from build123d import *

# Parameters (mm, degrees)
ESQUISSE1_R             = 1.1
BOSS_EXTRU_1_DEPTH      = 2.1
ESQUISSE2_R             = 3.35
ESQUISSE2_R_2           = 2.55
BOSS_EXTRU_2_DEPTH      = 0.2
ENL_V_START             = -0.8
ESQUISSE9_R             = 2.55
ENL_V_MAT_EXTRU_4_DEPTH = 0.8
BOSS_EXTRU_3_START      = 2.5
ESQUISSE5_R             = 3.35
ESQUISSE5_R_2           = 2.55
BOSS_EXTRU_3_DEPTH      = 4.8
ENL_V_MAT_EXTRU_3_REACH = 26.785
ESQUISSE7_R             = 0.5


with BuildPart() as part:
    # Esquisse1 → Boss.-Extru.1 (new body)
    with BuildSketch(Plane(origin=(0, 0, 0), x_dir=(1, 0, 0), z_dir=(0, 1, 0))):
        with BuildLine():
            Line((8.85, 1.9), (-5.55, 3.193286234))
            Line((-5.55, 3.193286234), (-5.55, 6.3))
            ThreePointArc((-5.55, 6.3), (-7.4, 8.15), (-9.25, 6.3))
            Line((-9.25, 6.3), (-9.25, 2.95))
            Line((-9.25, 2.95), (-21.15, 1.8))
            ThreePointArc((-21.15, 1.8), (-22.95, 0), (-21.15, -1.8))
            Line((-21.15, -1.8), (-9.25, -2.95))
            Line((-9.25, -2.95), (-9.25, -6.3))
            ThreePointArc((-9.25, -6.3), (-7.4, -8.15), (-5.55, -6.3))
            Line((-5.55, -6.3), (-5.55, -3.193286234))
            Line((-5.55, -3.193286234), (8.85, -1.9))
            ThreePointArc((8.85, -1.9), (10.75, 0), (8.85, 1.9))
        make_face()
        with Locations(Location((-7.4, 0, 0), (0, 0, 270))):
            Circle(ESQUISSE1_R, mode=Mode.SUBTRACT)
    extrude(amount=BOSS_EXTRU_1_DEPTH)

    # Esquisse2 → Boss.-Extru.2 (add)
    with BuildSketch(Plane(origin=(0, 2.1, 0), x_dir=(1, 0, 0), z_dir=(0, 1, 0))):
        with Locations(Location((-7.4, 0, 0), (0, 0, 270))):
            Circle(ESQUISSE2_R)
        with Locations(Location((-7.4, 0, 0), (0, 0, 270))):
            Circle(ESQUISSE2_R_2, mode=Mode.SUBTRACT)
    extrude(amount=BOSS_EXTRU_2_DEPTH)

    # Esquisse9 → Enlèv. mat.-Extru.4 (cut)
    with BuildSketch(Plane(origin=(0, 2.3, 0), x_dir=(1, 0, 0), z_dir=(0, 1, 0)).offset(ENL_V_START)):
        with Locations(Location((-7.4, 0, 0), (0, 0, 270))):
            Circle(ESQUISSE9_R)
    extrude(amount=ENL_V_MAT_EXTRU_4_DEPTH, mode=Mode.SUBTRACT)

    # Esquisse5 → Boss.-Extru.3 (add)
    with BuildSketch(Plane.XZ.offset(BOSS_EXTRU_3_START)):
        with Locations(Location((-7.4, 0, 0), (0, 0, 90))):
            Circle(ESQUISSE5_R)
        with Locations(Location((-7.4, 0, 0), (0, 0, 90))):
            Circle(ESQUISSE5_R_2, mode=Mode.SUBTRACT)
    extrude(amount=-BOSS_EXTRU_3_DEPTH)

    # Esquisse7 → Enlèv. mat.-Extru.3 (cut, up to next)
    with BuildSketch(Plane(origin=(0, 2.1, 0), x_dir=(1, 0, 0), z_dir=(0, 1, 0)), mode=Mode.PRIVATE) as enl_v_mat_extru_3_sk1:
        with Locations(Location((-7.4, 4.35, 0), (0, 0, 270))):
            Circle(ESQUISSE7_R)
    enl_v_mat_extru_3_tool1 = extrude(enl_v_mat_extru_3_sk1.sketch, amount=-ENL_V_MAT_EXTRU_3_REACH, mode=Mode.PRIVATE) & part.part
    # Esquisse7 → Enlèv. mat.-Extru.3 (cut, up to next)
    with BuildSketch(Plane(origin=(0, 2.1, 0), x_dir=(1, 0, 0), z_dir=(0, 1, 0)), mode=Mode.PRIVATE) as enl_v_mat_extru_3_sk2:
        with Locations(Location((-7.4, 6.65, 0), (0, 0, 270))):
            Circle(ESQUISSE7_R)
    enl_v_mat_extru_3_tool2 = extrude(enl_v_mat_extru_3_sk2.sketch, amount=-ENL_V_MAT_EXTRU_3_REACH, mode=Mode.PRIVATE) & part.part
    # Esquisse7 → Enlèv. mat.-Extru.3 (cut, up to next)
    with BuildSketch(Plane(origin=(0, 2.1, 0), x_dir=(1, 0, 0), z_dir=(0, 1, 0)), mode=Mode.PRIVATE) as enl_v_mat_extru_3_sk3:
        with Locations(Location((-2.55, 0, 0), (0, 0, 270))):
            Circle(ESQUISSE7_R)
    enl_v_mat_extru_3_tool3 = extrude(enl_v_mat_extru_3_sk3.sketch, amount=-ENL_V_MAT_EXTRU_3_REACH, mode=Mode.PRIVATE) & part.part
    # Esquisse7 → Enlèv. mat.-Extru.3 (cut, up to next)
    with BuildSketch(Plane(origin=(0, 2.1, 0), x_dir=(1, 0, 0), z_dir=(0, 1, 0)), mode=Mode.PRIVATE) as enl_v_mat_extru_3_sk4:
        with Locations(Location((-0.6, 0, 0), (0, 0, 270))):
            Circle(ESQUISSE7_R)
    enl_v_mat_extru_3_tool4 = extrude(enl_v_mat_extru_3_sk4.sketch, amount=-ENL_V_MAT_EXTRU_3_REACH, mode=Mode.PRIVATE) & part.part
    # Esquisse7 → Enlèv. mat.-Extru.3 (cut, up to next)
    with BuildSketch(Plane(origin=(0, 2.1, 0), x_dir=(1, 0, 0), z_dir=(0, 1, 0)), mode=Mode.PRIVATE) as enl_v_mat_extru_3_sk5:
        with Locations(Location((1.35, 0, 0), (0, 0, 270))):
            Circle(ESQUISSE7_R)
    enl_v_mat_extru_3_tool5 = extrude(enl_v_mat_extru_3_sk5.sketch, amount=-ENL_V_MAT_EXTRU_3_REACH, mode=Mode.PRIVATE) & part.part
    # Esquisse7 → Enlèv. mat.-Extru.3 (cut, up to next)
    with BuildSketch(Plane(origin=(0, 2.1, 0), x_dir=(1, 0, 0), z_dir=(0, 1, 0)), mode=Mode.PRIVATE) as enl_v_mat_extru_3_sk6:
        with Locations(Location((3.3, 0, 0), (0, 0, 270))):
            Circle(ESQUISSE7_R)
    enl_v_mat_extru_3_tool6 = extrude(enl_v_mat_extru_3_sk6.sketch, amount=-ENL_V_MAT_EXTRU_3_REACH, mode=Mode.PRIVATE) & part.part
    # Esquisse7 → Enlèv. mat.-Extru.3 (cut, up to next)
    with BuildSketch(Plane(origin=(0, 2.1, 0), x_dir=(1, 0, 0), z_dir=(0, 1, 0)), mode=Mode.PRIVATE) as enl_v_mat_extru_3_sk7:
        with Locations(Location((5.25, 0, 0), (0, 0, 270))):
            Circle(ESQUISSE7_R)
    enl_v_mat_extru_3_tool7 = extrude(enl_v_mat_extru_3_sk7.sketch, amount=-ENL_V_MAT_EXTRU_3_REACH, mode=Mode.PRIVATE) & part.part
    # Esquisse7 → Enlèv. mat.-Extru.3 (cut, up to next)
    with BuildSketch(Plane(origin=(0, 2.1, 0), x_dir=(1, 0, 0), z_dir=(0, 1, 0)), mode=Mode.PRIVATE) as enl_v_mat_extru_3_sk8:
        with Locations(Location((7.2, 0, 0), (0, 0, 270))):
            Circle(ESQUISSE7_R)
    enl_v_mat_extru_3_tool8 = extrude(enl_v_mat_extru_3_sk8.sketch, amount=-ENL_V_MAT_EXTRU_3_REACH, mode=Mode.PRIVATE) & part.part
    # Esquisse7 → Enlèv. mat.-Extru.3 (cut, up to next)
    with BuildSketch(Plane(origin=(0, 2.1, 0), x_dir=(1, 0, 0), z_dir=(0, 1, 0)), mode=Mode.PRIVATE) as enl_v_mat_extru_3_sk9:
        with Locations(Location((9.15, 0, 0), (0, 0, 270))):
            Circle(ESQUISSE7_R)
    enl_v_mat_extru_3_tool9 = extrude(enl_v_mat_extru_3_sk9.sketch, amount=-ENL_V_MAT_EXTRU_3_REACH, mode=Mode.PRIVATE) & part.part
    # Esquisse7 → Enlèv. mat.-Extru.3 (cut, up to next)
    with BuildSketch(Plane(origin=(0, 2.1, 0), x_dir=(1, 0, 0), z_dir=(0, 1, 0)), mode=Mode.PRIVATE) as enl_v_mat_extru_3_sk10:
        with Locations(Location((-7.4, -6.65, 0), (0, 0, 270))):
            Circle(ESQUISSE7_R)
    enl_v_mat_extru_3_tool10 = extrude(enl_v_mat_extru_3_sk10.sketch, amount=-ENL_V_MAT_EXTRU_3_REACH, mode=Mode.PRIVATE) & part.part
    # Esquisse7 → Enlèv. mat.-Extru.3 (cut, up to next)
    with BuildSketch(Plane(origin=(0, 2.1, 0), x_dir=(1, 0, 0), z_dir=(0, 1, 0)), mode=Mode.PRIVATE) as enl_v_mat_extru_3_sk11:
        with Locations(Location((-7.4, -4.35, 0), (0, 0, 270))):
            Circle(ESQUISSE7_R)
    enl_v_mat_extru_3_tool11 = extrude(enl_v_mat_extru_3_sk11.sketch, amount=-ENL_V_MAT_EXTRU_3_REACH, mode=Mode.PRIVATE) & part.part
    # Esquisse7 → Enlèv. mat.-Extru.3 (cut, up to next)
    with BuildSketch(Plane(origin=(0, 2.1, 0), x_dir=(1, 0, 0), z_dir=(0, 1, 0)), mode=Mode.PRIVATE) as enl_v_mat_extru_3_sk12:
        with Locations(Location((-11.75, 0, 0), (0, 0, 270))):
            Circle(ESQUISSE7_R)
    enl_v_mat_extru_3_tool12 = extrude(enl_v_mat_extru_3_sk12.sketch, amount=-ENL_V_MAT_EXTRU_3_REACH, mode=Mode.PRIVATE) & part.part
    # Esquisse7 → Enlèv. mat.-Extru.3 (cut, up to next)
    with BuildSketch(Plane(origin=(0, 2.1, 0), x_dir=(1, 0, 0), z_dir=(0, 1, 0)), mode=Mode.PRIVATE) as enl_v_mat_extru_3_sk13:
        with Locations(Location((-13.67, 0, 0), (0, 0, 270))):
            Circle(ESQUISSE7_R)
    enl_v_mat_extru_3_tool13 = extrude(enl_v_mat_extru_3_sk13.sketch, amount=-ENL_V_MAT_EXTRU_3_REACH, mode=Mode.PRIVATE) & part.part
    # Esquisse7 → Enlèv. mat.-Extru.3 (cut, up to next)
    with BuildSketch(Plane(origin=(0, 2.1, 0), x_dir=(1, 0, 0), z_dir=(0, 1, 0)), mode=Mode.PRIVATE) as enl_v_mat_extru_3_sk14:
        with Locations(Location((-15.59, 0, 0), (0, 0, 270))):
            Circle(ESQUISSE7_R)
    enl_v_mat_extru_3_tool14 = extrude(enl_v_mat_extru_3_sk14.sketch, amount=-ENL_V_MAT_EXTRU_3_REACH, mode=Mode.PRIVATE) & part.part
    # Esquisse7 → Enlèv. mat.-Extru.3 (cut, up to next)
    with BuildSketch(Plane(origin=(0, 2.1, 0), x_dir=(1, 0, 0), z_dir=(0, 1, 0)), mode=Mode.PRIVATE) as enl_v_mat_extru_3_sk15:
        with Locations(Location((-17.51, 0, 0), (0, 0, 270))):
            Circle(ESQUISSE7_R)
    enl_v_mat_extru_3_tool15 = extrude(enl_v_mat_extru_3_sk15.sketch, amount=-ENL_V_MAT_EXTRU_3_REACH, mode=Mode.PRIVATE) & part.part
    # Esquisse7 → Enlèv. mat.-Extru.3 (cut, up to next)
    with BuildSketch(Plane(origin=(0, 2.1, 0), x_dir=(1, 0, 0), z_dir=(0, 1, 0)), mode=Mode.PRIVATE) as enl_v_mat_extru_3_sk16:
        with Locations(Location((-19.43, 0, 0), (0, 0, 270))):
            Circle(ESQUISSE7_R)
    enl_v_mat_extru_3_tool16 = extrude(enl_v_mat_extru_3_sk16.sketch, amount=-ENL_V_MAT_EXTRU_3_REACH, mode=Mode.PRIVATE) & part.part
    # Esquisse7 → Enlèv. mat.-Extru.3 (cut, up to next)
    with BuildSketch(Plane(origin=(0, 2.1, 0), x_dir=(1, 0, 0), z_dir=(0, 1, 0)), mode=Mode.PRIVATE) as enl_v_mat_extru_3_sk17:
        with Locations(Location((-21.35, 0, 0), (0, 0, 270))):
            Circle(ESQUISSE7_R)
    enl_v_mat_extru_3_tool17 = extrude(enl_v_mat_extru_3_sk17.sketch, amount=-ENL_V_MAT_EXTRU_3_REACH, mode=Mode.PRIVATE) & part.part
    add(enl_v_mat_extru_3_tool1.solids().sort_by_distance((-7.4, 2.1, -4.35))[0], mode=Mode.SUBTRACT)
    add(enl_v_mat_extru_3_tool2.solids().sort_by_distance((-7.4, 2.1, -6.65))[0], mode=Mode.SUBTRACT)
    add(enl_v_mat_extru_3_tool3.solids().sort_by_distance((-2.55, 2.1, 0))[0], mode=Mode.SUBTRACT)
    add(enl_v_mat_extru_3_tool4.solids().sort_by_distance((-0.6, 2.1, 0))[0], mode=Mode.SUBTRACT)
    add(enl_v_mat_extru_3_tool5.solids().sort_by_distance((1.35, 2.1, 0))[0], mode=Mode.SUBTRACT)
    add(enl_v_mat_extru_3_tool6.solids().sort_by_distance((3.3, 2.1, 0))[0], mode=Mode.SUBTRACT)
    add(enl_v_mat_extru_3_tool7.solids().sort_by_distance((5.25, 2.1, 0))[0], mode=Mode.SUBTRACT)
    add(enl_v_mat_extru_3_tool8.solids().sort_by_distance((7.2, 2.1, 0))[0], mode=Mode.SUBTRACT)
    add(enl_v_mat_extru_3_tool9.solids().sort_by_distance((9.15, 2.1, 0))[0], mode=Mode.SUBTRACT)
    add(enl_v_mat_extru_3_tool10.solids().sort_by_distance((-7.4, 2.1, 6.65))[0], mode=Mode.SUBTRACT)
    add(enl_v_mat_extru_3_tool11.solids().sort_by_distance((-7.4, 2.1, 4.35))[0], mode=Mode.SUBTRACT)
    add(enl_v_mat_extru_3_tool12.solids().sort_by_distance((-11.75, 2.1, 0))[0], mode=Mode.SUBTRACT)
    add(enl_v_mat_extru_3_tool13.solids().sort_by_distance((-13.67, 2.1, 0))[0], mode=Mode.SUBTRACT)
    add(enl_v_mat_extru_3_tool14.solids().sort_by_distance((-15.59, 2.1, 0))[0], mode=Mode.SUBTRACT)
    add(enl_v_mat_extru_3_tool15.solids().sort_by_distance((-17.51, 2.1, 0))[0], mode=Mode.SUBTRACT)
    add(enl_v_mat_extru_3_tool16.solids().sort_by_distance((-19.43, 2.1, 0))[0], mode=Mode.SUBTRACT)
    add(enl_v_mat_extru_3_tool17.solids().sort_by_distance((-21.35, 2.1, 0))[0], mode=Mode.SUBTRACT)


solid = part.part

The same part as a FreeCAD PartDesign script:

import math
import FreeCAD as App
import Part
import Sketcher
Q = App.Units.Quantity

doc = App.newDocument("Part")
body = doc.addObject("PartDesign::Body", "Body")

sketch1 = body.newObject("Sketcher::SketchObject", "Sketch")
sketch1.AttachmentSupport = (doc.getObject("XZ_Plane"), [""])
sketch1.MapMode = "FlatFace"
sketch1.addGeometry(Part.LineSegment(App.Vector(8.8, -1.9, 0), App.Vector(-5.5, -3.2, 0)), False)
sketch1.addGeometry(Part.LineSegment(App.Vector(-5.5, -3.2, 0), App.Vector(-5.5, -6.3, 0)), False)
sketch1.addGeometry(Part.ArcOfCircle(Part.Circle(App.Vector(-7.4, -6.3, 0), App.Vector(0, 0, 1), 1.9), math.radians(180), math.radians(360)), False)
sketch1.addGeometry(Part.LineSegment(App.Vector(-9.2, -6.3, 0), App.Vector(-9.2, -3, 0)), False)
sketch1.addGeometry(Part.LineSegment(App.Vector(-9.2, -3, 0), App.Vector(-21.1, -1.8, 0)), False)
sketch1.addGeometry(Part.ArcOfCircle(Part.Circle(App.Vector(-21.1, 0, 0), App.Vector(0, 0, 1), 1.8), math.radians(90), math.radians(270)), False)
sketch1.addGeometry(Part.LineSegment(App.Vector(-21.1, 1.8, 0), App.Vector(-9.2, 3, 0)), False)
sketch1.addGeometry(Part.LineSegment(App.Vector(-9.2, 3, 0), App.Vector(-9.2, 6.3, 0)), False)
sketch1.addGeometry(Part.ArcOfCircle(Part.Circle(App.Vector(-7.4, 6.3, 0), App.Vector(0, 0, 1), 1.9), math.radians(0), math.radians(180)), False)
sketch1.addGeometry(Part.LineSegment(App.Vector(-5.5, 6.3, 0), App.Vector(-5.5, 3.2, 0)), False)
sketch1.addGeometry(Part.LineSegment(App.Vector(-5.5, 3.2, 0), App.Vector(8.8, 1.9, 0)), False)
sketch1.addGeometry(Part.ArcOfCircle(Part.Circle(App.Vector(8.8, 0, 0), App.Vector(0, 0, 1), 1.9), math.radians(-90), math.radians(90)), False)
sketch1.addGeometry(Part.Circle(App.Vector(-7.4, 0, 0), App.Vector(0, 0, 1), 1.1), False)
sketch1.addConstraint(Sketcher.Constraint("Coincident", 0, 2, 1, 1))
sketch1.addConstraint(Sketcher.Constraint("Tangent", 1, 2, 2, 2))
sketch1.addConstraint(Sketcher.Constraint("Tangent", 2, 1, 3, 1))
sketch1.addConstraint(Sketcher.Constraint("Coincident", 3, 2, 4, 1))
sketch1.addConstraint(Sketcher.Constraint("Coincident", 4, 2, 5, 2))
sketch1.addConstraint(Sketcher.Constraint("Coincident", 5, 1, 6, 1))
sketch1.addConstraint(Sketcher.Constraint("Coincident", 6, 2, 7, 1))
sketch1.addConstraint(Sketcher.Constraint("Tangent", 7, 2, 8, 2))
sketch1.addConstraint(Sketcher.Constraint("Tangent", 8, 1, 9, 1))
sketch1.addConstraint(Sketcher.Constraint("Coincident", 9, 2, 10, 1))
sketch1.addConstraint(Sketcher.Constraint("Coincident", 10, 2, 11, 2))
sketch1.addConstraint(Sketcher.Constraint("Coincident", 11, 1, 0, 1))
sketch1.addConstraint(Sketcher.Constraint("Vertical", 1))
sketch1.addConstraint(Sketcher.Constraint("Vertical", 3))
sketch1.addConstraint(Sketcher.Constraint("Vertical", 7))
sketch1.addConstraint(Sketcher.Constraint("Vertical", 9))
sketch1.addConstraint(Sketcher.Constraint("Equal", 2, 8))
sketch1.addConstraint(Sketcher.Constraint("Symmetric", 2, 3, 8, 3, -1))
sketch1.addConstraint(Sketcher.Constraint("Symmetric", 4, 2, 5, 1, -1))
sketch1.addConstraint(Sketcher.Constraint("Symmetric", 10, 2, 11, 1, -1))
sketch1.addConstraint(Sketcher.Constraint("PointOnObject", 12, 3, -1))
sketch1.addConstraint(Sketcher.Constraint("Vertical", 8, 3, 12, 3))
sketch1.addConstraint(Sketcher.Constraint("Vertical", 5, 3, 4, 2))
sketch1.addConstraint(Sketcher.Constraint("Vertical", 11, 3, 10, 2))
sketch1.addConstraint(Sketcher.Constraint("Equal", 3, 7))
sketch1.addConstraint(Sketcher.Constraint("Equal", 1, 9))
sketch1.addConstraint(Sketcher.Constraint("Diameter", 12, Q("2.2 mm")))
sketch1.addConstraint(Sketcher.Constraint("Radius", 5, Q("1.8 mm")))
sketch1.addConstraint(Sketcher.Constraint("Radius", 11, Q("1.9 mm")))
sketch1.addConstraint(Sketcher.Constraint("Radius", 2, Q("1.85 mm")))
sketch1.addConstraint(Sketcher.Constraint("DistanceX", 5, 3, 11, 3, Q("30 mm")))
sketch1.addConstraint(Sketcher.Constraint("DistanceY", 3, 1, 3, 2, Q("3.35 mm")))
sketch1.addConstraint(Sketcher.Constraint("DistanceX", 2, 3, -1, 1, Q("7.4 mm")))
sketch1.addConstraint(Sketcher.Constraint("DistanceY", 2, 3, -1, 1, Q("6.3 mm")))
sketch1.addConstraint(Sketcher.Constraint("DistanceX", 0, 2, 11, 3, Q("14.4 mm")))
sketch1.addConstraint(Sketcher.Constraint("Distance", 0, Q("14.457959 mm")))
pad1 = body.newObject("PartDesign::Pad", "Pad")
pad1.Profile = sketch1
pad1.Length = 2.1
pad1.Reversed = True

sketch2 = body.newObject("Sketcher::SketchObject", "Sketch001")
sketch2.AttachmentSupport = (doc.getObject("XZ_Plane"), [""])
sketch2.MapMode = "FlatFace"
sketch2.AttachmentOffset = App.Placement(App.Vector(0, 0, -2.1), App.Rotation())
sketch2.addGeometry(Part.Circle(App.Vector(-7.4, 0, 0), App.Vector(0, 0, 1), 3.4), False)
sketch2.addGeometry(Part.Circle(App.Vector(-7.4, 0, 0), App.Vector(0, 0, 1), 2.5), False)
sketch2.addConstraint(Sketcher.Constraint("Coincident", 1, 3, 0, 3))
sketch2.addConstraint(Sketcher.Constraint("PointOnObject", 0, 3, -1))
sketch2.addConstraint(Sketcher.Constraint("Diameter", 0, Q("6.7 mm")))
sketch2.addConstraint(Sketcher.Constraint("Diameter", 1, Q("5.1 mm")))
sketch2.addConstraint(Sketcher.Constraint("DistanceX", 0, 3, -1, 1, Q("7.4 mm")))
pad2 = body.newObject("PartDesign::Pad", "Pad001")
pad2.Profile = sketch2
pad2.Length = 0.2
pad2.Reversed = True

sketch3 = body.newObject("Sketcher::SketchObject", "Sketch002")
sketch3.AttachmentSupport = (doc.getObject("XZ_Plane"), [""])
sketch3.MapMode = "FlatFace"
sketch3.AttachmentOffset = App.Placement(App.Vector(0, 0, -1.5), App.Rotation())
sketch3.addGeometry(Part.Circle(App.Vector(-7.4, 0, 0), App.Vector(0, 0, 1), 2.5), False)
sketch3.addConstraint(Sketcher.Constraint("PointOnObject", 0, 3, -1))
sketch3.addConstraint(Sketcher.Constraint("Diameter", 0, Q("5.1 mm")))
sketch3.addConstraint(Sketcher.Constraint("DistanceX", 0, 3, -1, 1, Q("7.4 mm")))
pocket1 = body.newObject("PartDesign::Pocket", "Pocket")
pocket1.Profile = sketch3
pocket1.Length = 0.8

sketch4 = body.newObject("Sketcher::SketchObject", "Sketch003")
sketch4.AttachmentSupport = (doc.getObject("XZ_Plane"), [""])
sketch4.MapMode = "FlatFace"
sketch4.AttachmentOffset = App.Placement(App.Vector(0, 0, 2.5), App.Rotation())
sketch4.addGeometry(Part.Circle(App.Vector(-7.4, 0, 0), App.Vector(0, 0, 1), 3.4), False)
sketch4.addGeometry(Part.Circle(App.Vector(-7.4, 0, 0), App.Vector(0, 0, 1), 2.5), False)
sketch4.addConstraint(Sketcher.Constraint("Coincident", 1, 3, 0, 3))
sketch4.addConstraint(Sketcher.Constraint("PointOnObject", 0, 3, -1))
sketch4.addConstraint(Sketcher.Constraint("Diameter", 0, Q("6.7 mm")))
sketch4.addConstraint(Sketcher.Constraint("Diameter", 1, Q("5.1 mm")))
sketch4.addConstraint(Sketcher.Constraint("DistanceX", 0, 3, -1, 1, Q("7.4 mm")))
pad3 = body.newObject("PartDesign::Pad", "Pad002")
pad3.Profile = sketch4
pad3.Length = 4.8
pad3.Reversed = True

sketch5 = body.newObject("Sketcher::SketchObject", "Sketch004")
sketch5.AttachmentSupport = (doc.getObject("XZ_Plane"), [""])
sketch5.MapMode = "FlatFace"
sketch5.AttachmentOffset = App.Placement(App.Vector(0, 0, -2.1), App.Rotation())
sketch5.addGeometry(Part.Circle(App.Vector(-7.4, -4.3, 0), App.Vector(0, 0, 1), 0.5), False)
sketch5.addConstraint(Sketcher.Constraint("Diameter", 0, Q("1 mm")))
sketch5.addConstraint(Sketcher.Constraint("DistanceX", 0, 3, -1, 1, Q("7.4 mm")))
sketch5.addConstraint(Sketcher.Constraint("DistanceY", 0, 3, -1, 1, Q("4.35 mm")))
pocket2 = body.newObject("PartDesign::Pocket", "Pocket001")
pocket2.Profile = sketch5
pocket2.Type = "UpToFirst"
pocket2.Reversed = True

sketch6 = body.newObject("Sketcher::SketchObject", "Sketch005")
sketch6.AttachmentSupport = (doc.getObject("XZ_Plane"), [""])
sketch6.MapMode = "FlatFace"
sketch6.AttachmentOffset = App.Placement(App.Vector(0, 0, -2.1), App.Rotation())
sketch6.addGeometry(Part.Circle(App.Vector(-7.4, -6.7, 0), App.Vector(0, 0, 1), 0.5), False)
sketch6.addConstraint(Sketcher.Constraint("Diameter", 0, Q("1 mm")))
sketch6.addConstraint(Sketcher.Constraint("DistanceX", 0, 3, -1, 1, Q("7.4 mm")))
sketch6.addConstraint(Sketcher.Constraint("DistanceY", 0, 3, -1, 1, Q("6.65 mm")))
pocket3 = body.newObject("PartDesign::Pocket", "Pocket002")
pocket3.Profile = sketch6
pocket3.Type = "UpToFirst"
pocket3.Reversed = True

sketch7 = body.newObject("Sketcher::SketchObject", "Sketch006")
sketch7.AttachmentSupport = (doc.getObject("XZ_Plane"), [""])
sketch7.MapMode = "FlatFace"
sketch7.AttachmentOffset = App.Placement(App.Vector(0, 0, -2.1), App.Rotation())
sketch7.addGeometry(Part.Circle(App.Vector(-2.5, 0, 0), App.Vector(0, 0, 1), 0.5), False)
sketch7.addConstraint(Sketcher.Constraint("PointOnObject", 0, 3, -1))
sketch7.addConstraint(Sketcher.Constraint("Diameter", 0, Q("1 mm")))
sketch7.addConstraint(Sketcher.Constraint("DistanceX", 0, 3, -1, 1, Q("2.55 mm")))
pocket4 = body.newObject("PartDesign::Pocket", "Pocket003")
pocket4.Profile = sketch7
pocket4.Type = "UpToFirst"
pocket4.Reversed = True

sketch8 = body.newObject("Sketcher::SketchObject", "Sketch007")
sketch8.AttachmentSupport = (doc.getObject("XZ_Plane"), [""])
sketch8.MapMode = "FlatFace"
sketch8.AttachmentOffset = App.Placement(App.Vector(0, 0, -2.1), App.Rotation())
sketch8.addGeometry(Part.Circle(App.Vector(-0.6, 0, 0), App.Vector(0, 0, 1), 0.5), False)
sketch8.addConstraint(Sketcher.Constraint("PointOnObject", 0, 3, -1))
sketch8.addConstraint(Sketcher.Constraint("Diameter", 0, Q("1 mm")))
sketch8.addConstraint(Sketcher.Constraint("DistanceX", 0, 3, -1, 1, Q("0.6 mm")))
pocket5 = body.newObject("PartDesign::Pocket", "Pocket004")
pocket5.Profile = sketch8
pocket5.Type = "UpToFirst"
pocket5.Reversed = True

sketch9 = body.newObject("Sketcher::SketchObject", "Sketch008")
sketch9.AttachmentSupport = (doc.getObject("XZ_Plane"), [""])
sketch9.MapMode = "FlatFace"
sketch9.AttachmentOffset = App.Placement(App.Vector(0, 0, -2.1), App.Rotation())
sketch9.addGeometry(Part.Circle(App.Vector(1.4, 0, 0), App.Vector(0, 0, 1), 0.5), False)
sketch9.addConstraint(Sketcher.Constraint("PointOnObject", 0, 3, -1))
sketch9.addConstraint(Sketcher.Constraint("Diameter", 0, Q("1 mm")))
sketch9.addConstraint(Sketcher.Constraint("DistanceX", -1, 1, 0, 3, Q("1.35 mm")))
pocket6 = body.newObject("PartDesign::Pocket", "Pocket005")
pocket6.Profile = sketch9
pocket6.Type = "UpToFirst"
pocket6.Reversed = True

sketch10 = body.newObject("Sketcher::SketchObject", "Sketch009")
sketch10.AttachmentSupport = (doc.getObject("XZ_Plane"), [""])
sketch10.MapMode = "FlatFace"
sketch10.AttachmentOffset = App.Placement(App.Vector(0, 0, -2.1), App.Rotation())
sketch10.addGeometry(Part.Circle(App.Vector(3.3, 0, 0), App.Vector(0, 0, 1), 0.5), False)
sketch10.addConstraint(Sketcher.Constraint("PointOnObject", 0, 3, -1))
sketch10.addConstraint(Sketcher.Constraint("Diameter", 0, Q("1 mm")))
sketch10.addConstraint(Sketcher.Constraint("DistanceX", -1, 1, 0, 3, Q("3.3 mm")))
pocket7 = body.newObject("PartDesign::Pocket", "Pocket006")
pocket7.Profile = sketch10
pocket7.Type = "UpToFirst"
pocket7.Reversed = True

sketch11 = body.newObject("Sketcher::SketchObject", "Sketch010")
sketch11.AttachmentSupport = (doc.getObject("XZ_Plane"), [""])
sketch11.MapMode = "FlatFace"
sketch11.AttachmentOffset = App.Placement(App.Vector(0, 0, -2.1), App.Rotation())
sketch11.addGeometry(Part.Circle(App.Vector(5.2, 0, 0), App.Vector(0, 0, 1), 0.5), False)
sketch11.addConstraint(Sketcher.Constraint("PointOnObject", 0, 3, -1))
sketch11.addConstraint(Sketcher.Constraint("Diameter", 0, Q("1 mm")))
sketch11.addConstraint(Sketcher.Constraint("DistanceX", -1, 1, 0, 3, Q("5.25 mm")))
pocket8 = body.newObject("PartDesign::Pocket", "Pocket007")
pocket8.Profile = sketch11
pocket8.Type = "UpToFirst"
pocket8.Reversed = True

sketch12 = body.newObject("Sketcher::SketchObject", "Sketch011")
sketch12.AttachmentSupport = (doc.getObject("XZ_Plane"), [""])
sketch12.MapMode = "FlatFace"
sketch12.AttachmentOffset = App.Placement(App.Vector(0, 0, -2.1), App.Rotation())
sketch12.addGeometry(Part.Circle(App.Vector(7.2, 0, 0), App.Vector(0, 0, 1), 0.5), False)
sketch12.addConstraint(Sketcher.Constraint("PointOnObject", 0, 3, -1))
sketch12.addConstraint(Sketcher.Constraint("Diameter", 0, Q("1 mm")))
sketch12.addConstraint(Sketcher.Constraint("DistanceX", -1, 1, 0, 3, Q("7.2 mm")))
pocket9 = body.newObject("PartDesign::Pocket", "Pocket008")
pocket9.Profile = sketch12
pocket9.Type = "UpToFirst"
pocket9.Reversed = True

sketch13 = body.newObject("Sketcher::SketchObject", "Sketch012")
sketch13.AttachmentSupport = (doc.getObject("XZ_Plane"), [""])
sketch13.MapMode = "FlatFace"
sketch13.AttachmentOffset = App.Placement(App.Vector(0, 0, -2.1), App.Rotation())
sketch13.addGeometry(Part.Circle(App.Vector(9.2, 0, 0), App.Vector(0, 0, 1), 0.5), False)
sketch13.addConstraint(Sketcher.Constraint("PointOnObject", 0, 3, -1))
sketch13.addConstraint(Sketcher.Constraint("Diameter", 0, Q("1 mm")))
sketch13.addConstraint(Sketcher.Constraint("DistanceX", -1, 1, 0, 3, Q("9.15 mm")))
pocket10 = body.newObject("PartDesign::Pocket", "Pocket009")
pocket10.Profile = sketch13
pocket10.Type = "UpToFirst"
pocket10.Reversed = True

sketch14 = body.newObject("Sketcher::SketchObject", "Sketch013")
sketch14.AttachmentSupport = (doc.getObject("XZ_Plane"), [""])
sketch14.MapMode = "FlatFace"
sketch14.AttachmentOffset = App.Placement(App.Vector(0, 0, -2.1), App.Rotation())
sketch14.addGeometry(Part.Circle(App.Vector(-7.4, 6.7, 0), App.Vector(0, 0, 1), 0.5), False)
sketch14.addConstraint(Sketcher.Constraint("Diameter", 0, Q("1 mm")))
sketch14.addConstraint(Sketcher.Constraint("DistanceX", 0, 3, -1, 1, Q("7.4 mm")))
sketch14.addConstraint(Sketcher.Constraint("DistanceY", -1, 1, 0, 3, Q("6.65 mm")))
pocket11 = body.newObject("PartDesign::Pocket", "Pocket010")
pocket11.Profile = sketch14
pocket11.Type = "UpToFirst"
pocket11.Reversed = True

sketch15 = body.newObject("Sketcher::SketchObject", "Sketch014")
sketch15.AttachmentSupport = (doc.getObject("XZ_Plane"), [""])
sketch15.MapMode = "FlatFace"
sketch15.AttachmentOffset = App.Placement(App.Vector(0, 0, -2.1), App.Rotation())
sketch15.addGeometry(Part.Circle(App.Vector(-7.4, 4.3, 0), App.Vector(0, 0, 1), 0.5), False)
sketch15.addConstraint(Sketcher.Constraint("Diameter", 0, Q("1 mm")))
sketch15.addConstraint(Sketcher.Constraint("DistanceX", 0, 3, -1, 1, Q("7.4 mm")))
sketch15.addConstraint(Sketcher.Constraint("DistanceY", -1, 1, 0, 3, Q("4.35 mm")))
pocket12 = body.newObject("PartDesign::Pocket", "Pocket011")
pocket12.Profile = sketch15
pocket12.Type = "UpToFirst"
pocket12.Reversed = True

sketch16 = body.newObject("Sketcher::SketchObject", "Sketch015")
sketch16.AttachmentSupport = (doc.getObject("XZ_Plane"), [""])
sketch16.MapMode = "FlatFace"
sketch16.AttachmentOffset = App.Placement(App.Vector(0, 0, -2.1), App.Rotation())
sketch16.addGeometry(Part.Circle(App.Vector(-11.8, 0, 0), App.Vector(0, 0, 1), 0.5), False)
sketch16.addConstraint(Sketcher.Constraint("PointOnObject", 0, 3, -1))
sketch16.addConstraint(Sketcher.Constraint("Diameter", 0, Q("1 mm")))
sketch16.addConstraint(Sketcher.Constraint("DistanceX", 0, 3, -1, 1, Q("11.75 mm")))
pocket13 = body.newObject("PartDesign::Pocket", "Pocket012")
pocket13.Profile = sketch16
pocket13.Type = "UpToFirst"
pocket13.Reversed = True

sketch17 = body.newObject("Sketcher::SketchObject", "Sketch016")
sketch17.AttachmentSupport = (doc.getObject("XZ_Plane"), [""])
sketch17.MapMode = "FlatFace"
sketch17.AttachmentOffset = App.Placement(App.Vector(0, 0, -2.1), App.Rotation())
sketch17.addGeometry(Part.Circle(App.Vector(-13.7, 0, 0), App.Vector(0, 0, 1), 0.5), False)
sketch17.addConstraint(Sketcher.Constraint("PointOnObject", 0, 3, -1))
sketch17.addConstraint(Sketcher.Constraint("Diameter", 0, Q("1 mm")))
sketch17.addConstraint(Sketcher.Constraint("DistanceX", 0, 3, -1, 1, Q("13.67 mm")))
pocket14 = body.newObject("PartDesign::Pocket", "Pocket013")
pocket14.Profile = sketch17
pocket14.Type = "UpToFirst"
pocket14.Reversed = True

sketch18 = body.newObject("Sketcher::SketchObject", "Sketch017")
sketch18.AttachmentSupport = (doc.getObject("XZ_Plane"), [""])
sketch18.MapMode = "FlatFace"
sketch18.AttachmentOffset = App.Placement(App.Vector(0, 0, -2.1), App.Rotation())
sketch18.addGeometry(Part.Circle(App.Vector(-15.6, 0, 0), App.Vector(0, 0, 1), 0.5), False)
sketch18.addConstraint(Sketcher.Constraint("PointOnObject", 0, 3, -1))
sketch18.addConstraint(Sketcher.Constraint("Diameter", 0, Q("1 mm")))
sketch18.addConstraint(Sketcher.Constraint("DistanceX", 0, 3, -1, 1, Q("15.59 mm")))
pocket15 = body.newObject("PartDesign::Pocket", "Pocket014")
pocket15.Profile = sketch18
pocket15.Type = "UpToFirst"
pocket15.Reversed = True

sketch19 = body.newObject("Sketcher::SketchObject", "Sketch018")
sketch19.AttachmentSupport = (doc.getObject("XZ_Plane"), [""])
sketch19.MapMode = "FlatFace"
sketch19.AttachmentOffset = App.Placement(App.Vector(0, 0, -2.1), App.Rotation())
sketch19.addGeometry(Part.Circle(App.Vector(-17.5, 0, 0), App.Vector(0, 0, 1), 0.5), False)
sketch19.addConstraint(Sketcher.Constraint("PointOnObject", 0, 3, -1))
sketch19.addConstraint(Sketcher.Constraint("Diameter", 0, Q("1 mm")))
sketch19.addConstraint(Sketcher.Constraint("DistanceX", 0, 3, -1, 1, Q("17.51 mm")))
pocket16 = body.newObject("PartDesign::Pocket", "Pocket015")
pocket16.Profile = sketch19
pocket16.Type = "UpToFirst"
pocket16.Reversed = True

sketch20 = body.newObject("Sketcher::SketchObject", "Sketch019")
sketch20.AttachmentSupport = (doc.getObject("XZ_Plane"), [""])
sketch20.MapMode = "FlatFace"
sketch20.AttachmentOffset = App.Placement(App.Vector(0, 0, -2.1), App.Rotation())
sketch20.addGeometry(Part.Circle(App.Vector(-19.4, 0, 0), App.Vector(0, 0, 1), 0.5), False)
sketch20.addConstraint(Sketcher.Constraint("PointOnObject", 0, 3, -1))
sketch20.addConstraint(Sketcher.Constraint("Diameter", 0, Q("1 mm")))
sketch20.addConstraint(Sketcher.Constraint("DistanceX", 0, 3, -1, 1, Q("19.43 mm")))
pocket17 = body.newObject("PartDesign::Pocket", "Pocket016")
pocket17.Profile = sketch20
pocket17.Type = "UpToFirst"
pocket17.Reversed = True

sketch21 = body.newObject("Sketcher::SketchObject", "Sketch020")
sketch21.AttachmentSupport = (doc.getObject("XZ_Plane"), [""])
sketch21.MapMode = "FlatFace"
sketch21.AttachmentOffset = App.Placement(App.Vector(0, 0, -2.1), App.Rotation())
sketch21.addGeometry(Part.Circle(App.Vector(-21.4, 0, 0), App.Vector(0, 0, 1), 0.5), False)
sketch21.addConstraint(Sketcher.Constraint("PointOnObject", 0, 3, -1))
sketch21.addConstraint(Sketcher.Constraint("Diameter", 0, Q("1 mm")))
sketch21.addConstraint(Sketcher.Constraint("DistanceX", 0, 3, -1, 1, Q("21.35 mm")))
pocket18 = body.newObject("PartDesign::Pocket", "Pocket017")
pocket18.Profile = sketch21
pocket18.Type = "UpToFirst"
pocket18.Reversed = True

doc.recompute()
